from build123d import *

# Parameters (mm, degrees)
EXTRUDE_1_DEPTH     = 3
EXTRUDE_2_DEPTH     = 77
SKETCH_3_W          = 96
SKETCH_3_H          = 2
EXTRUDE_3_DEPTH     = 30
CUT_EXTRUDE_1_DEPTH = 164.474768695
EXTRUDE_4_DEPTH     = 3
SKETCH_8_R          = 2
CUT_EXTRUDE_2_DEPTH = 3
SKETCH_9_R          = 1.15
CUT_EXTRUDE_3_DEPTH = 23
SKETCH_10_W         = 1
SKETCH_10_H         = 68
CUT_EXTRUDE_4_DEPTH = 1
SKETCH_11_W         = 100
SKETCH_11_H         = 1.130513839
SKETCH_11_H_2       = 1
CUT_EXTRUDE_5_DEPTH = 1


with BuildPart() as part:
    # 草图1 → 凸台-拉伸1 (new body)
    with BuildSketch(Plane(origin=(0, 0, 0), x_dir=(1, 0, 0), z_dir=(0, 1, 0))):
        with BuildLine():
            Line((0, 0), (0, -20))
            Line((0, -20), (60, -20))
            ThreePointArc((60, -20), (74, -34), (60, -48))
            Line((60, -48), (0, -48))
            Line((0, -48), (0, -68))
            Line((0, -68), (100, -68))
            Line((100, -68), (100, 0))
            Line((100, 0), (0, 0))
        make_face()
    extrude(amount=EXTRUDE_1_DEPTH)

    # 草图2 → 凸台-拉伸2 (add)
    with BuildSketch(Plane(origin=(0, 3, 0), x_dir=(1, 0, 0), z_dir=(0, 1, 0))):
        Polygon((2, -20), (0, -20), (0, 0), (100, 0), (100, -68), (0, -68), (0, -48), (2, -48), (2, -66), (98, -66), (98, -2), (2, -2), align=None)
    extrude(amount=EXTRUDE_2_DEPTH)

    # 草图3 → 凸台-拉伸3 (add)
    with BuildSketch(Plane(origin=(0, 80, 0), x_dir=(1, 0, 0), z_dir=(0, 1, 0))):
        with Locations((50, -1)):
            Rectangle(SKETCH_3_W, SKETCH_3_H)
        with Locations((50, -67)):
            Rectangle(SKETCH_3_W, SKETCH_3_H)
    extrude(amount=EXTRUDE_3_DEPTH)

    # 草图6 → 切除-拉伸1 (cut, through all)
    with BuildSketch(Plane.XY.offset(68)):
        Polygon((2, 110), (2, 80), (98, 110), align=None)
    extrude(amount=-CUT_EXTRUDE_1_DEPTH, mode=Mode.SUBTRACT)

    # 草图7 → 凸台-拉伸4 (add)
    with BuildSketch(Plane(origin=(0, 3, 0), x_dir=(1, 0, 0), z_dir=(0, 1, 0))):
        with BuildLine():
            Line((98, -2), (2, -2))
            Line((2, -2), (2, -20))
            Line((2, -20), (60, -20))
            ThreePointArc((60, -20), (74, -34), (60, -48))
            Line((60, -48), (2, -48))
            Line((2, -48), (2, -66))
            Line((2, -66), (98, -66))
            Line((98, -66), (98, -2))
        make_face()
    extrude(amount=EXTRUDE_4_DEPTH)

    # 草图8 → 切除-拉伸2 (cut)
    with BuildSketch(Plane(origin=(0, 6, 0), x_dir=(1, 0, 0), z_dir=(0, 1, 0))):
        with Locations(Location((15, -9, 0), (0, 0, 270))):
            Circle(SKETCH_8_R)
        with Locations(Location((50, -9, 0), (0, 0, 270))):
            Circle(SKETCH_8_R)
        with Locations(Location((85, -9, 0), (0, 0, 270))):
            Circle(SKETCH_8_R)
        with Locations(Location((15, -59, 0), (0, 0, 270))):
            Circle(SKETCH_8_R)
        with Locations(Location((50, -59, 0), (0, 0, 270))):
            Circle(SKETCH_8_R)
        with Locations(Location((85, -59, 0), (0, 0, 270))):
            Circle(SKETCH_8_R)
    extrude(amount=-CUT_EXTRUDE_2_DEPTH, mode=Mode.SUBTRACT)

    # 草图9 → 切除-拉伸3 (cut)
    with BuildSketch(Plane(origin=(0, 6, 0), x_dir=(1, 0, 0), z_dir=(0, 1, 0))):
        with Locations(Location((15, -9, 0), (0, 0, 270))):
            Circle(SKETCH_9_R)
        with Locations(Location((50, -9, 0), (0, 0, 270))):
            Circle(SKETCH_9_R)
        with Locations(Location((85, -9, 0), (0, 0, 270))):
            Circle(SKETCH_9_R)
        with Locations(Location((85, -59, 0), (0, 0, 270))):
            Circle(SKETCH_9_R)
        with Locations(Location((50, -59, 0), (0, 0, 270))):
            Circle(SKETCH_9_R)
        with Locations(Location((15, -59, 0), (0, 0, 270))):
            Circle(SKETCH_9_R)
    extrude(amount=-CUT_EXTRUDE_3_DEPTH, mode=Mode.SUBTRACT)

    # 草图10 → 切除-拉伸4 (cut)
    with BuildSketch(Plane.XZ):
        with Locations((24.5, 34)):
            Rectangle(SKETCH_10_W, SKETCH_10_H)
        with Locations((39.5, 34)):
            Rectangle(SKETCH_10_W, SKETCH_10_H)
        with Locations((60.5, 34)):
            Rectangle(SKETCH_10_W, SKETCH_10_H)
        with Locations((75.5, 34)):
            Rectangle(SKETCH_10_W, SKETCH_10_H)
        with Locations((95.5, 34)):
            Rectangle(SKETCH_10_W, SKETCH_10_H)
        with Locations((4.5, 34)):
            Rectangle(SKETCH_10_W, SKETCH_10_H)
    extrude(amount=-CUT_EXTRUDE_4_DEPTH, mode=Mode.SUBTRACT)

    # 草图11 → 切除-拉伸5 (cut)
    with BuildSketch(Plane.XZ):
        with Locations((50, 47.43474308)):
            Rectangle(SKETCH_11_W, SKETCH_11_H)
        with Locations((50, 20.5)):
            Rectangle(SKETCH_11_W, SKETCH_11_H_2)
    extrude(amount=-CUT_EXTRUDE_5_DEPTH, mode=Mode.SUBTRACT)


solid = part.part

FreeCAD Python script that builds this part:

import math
import FreeCAD as App
import Part
import Sketcher

V = App.Vector
Q = App.Units.Quantity

doc = App.newDocument("Part")
body = doc.addObject("PartDesign::Body", "Body")

sketch1 = doc.addObject("Sketcher::SketchObject", "Sketch")
body.addObject(sketch1)
sketch1.AttachmentSupport = (doc.XZ_Plane, [""])
sketch1.MapMode = "FlatFace"
sketch1.addGeometry([
    Part.LineSegment(V(0, 0, 0), V(0, 20, 0)),
    Part.LineSegment(V(0, 20, 0), V(60, 20, 0)),
    Part.ArcOfCircle(Part.Circle(V(60, 34, 0), V(0, 0, 1), 14), math.radians(-90), math.radians(90)),
    Part.LineSegment(V(60, 48, 0), V(0, 48, 0)),
    Part.LineSegment(V(0, 48, 0), V(0, 68, 0)),
    Part.LineSegment(V(0, 68, 0), V(100, 68, 0)),
    Part.LineSegment(V(100, 68, 0), V(100, 0, 0)),
    Part.LineSegment(V(100, 0, 0), V(0, 0, 0)),
], False)
sketch1.addConstraint([
    Sketcher.Constraint("Coincident", 0, 2, 1, 1),
    Sketcher.Constraint("Tangent", 1, 2, 2, 1),
    Sketcher.Constraint("Tangent", 2, 2, 3, 1),
    Sketcher.Constraint("Coincident", 3, 2, 4, 1),
    Sketcher.Constraint("Coincident", 4, 2, 5, 1),
    Sketcher.Constraint("Coincident", 5, 2, 6, 1),
    Sketcher.Constraint("Coincident", 6, 2, 7, 1),
    Sketcher.Constraint("Coincident", 7, 2, 0, 1),
    Sketcher.Constraint("Vertical", 0),
    Sketcher.Constraint("Horizontal", 1),
    Sketcher.Constraint("Horizontal", 3),
    Sketcher.Constraint("Vertical", 4),
    Sketcher.Constraint("Horizontal", 5),
    Sketcher.Constraint("Vertical", 6),
    Sketcher.Constraint("Horizontal", 7),
    Sketcher.Constraint("Coincident", 7, 2, -1, 1),
    Sketcher.Constraint("PointOnObject", 3, 2, -2),
    Sketcher.Constraint("Equal", 0, 4),
    Sketcher.Constraint("Radius", 2, Q("14 mm")),
    Sketcher.Constraint("DistanceX", 1, 1, 1, 2, Q("60 mm")),
    Sketcher.Constraint("DistanceX", 5, 1, 5, 2, Q("100 mm")),
    Sketcher.Constraint("DistanceY", 0, 1, 0, 2, Q("20 mm")),
])
pad1 = doc.addObject("PartDesign::Pad", "Pad")
body.addObject(pad1)
pad1.Profile = sketch1
pad1.Length = 3
pad1.Reversed = True

sketch2 = doc.addObject("Sketcher::SketchObject", "Sketch001")
body.addObject(sketch2)
sketch2.AttachmentSupport = (doc.XZ_Plane, [""])
sketch2.MapMode = "FlatFace"
sketch2.AttachmentOffset = App.Placement(V(0, 0, -3), App.Rotation())
sketch2.addGeometry([
    Part.LineSegment(V(0, 20, 0), V(2, 20, 0)),
    Part.LineSegment(V(2, 20, 0), V(2, 2, 0)),
    Part.LineSegment(V(2, 2, 0), V(98, 2, 0)),
    Part.LineSegment(V(98, 2, 0), V(98, 66, 0)),
    Part.LineSegment(V(98, 66, 0), V(2, 66, 0)),
    Part.LineSegment(V(2, 66, 0), V(2, 48, 0)),
    Part.LineSegment(V(2, 48, 0), V(0, 48, 0)),
    Part.LineSegment(V(0, 48, 0), V(0, 68, 0)),
    Part.LineSegment(V(0, 68, 0), V(100, 68, 0)),
    Part.LineSegment(V(100, 68, 0), V(100, 0, 0)),
    Part.LineSegment(V(100, 0, 0), V(0, 0, 0)),
    Part.LineSegment(V(0, 0, 0), V(0, 20, 0)),
], False)
sketch2.addConstraint([
    Sketcher.Constraint("Coincident", 0, 2, 1, 1),
    Sketcher.Constraint("Coincident", 1, 2, 2, 1),
    Sketcher.Constraint("Coincident", 2, 2, 3, 1),
    Sketcher.Constraint("Coincident", 3, 2, 4, 1),
    Sketcher.Constraint("Coincident", 4, 2, 5, 1),
    Sketcher.Constraint("Coincident", 5, 2, 6, 1),
    Sketcher.Constraint("Coincident", 6, 2, 7, 1),
    Sketcher.Constraint("Coincident", 7, 2, 8, 1),
    Sketcher.Constraint("Coincident", 8, 2, 9, 1),
    Sketcher.Constraint("Coincident", 9, 2, 10, 1),
    Sketcher.Constraint("Coincident", 10, 2, 11, 1),
    Sketcher.Constraint("Coincident", 11, 2, 0, 1),
    Sketcher.Constraint("Horizontal", 0),
    Sketcher.Constraint("Vertical", 1),
    Sketcher.Constraint("Horizontal", 2),
    Sketcher.Constraint("Vertical", 3),
    Sketcher.Constraint("Horizontal", 4),
    Sketcher.Constraint("Vertical", 5),
    Sketcher.Constraint("Horizontal", 6),
    Sketcher.Constraint("Vertical", 7),
    Sketcher.Constraint("Horizontal", 8),
    Sketcher.Constraint("Vertical", 9),
    Sketcher.Constraint("Horizontal", 10),
    Sketcher.Constraint("Vertical", 11),
    Sketcher.Constraint("Coincident", 10, 2, -1, 1),
    Sketcher.Constraint("PointOnObject", 6, 2, -2),
    Sketcher.Constraint("Vertical", 1, 2, 4, 2),
    Sketcher.Constraint("Equal", 1, 5),
    Sketcher.Constraint("Equal", 7, 11),
    Sketcher.Constraint("DistanceX", 0, 1, 0, 2, Q("2 mm")),
    Sketcher.Constraint("DistanceX", 2, 1, 2, 2, Q("96 mm")),
    Sketcher.Constraint("DistanceX", 8, 1, 8, 2, Q("100 mm")),
    Sketcher.Constraint("DistanceY", 1, 2, 1, 1, Q("18 mm")),
    Sketcher.Constraint("DistanceY", 3, 1, 3, 2, Q("64 mm")),
    Sketcher.Constraint("DistanceY", 7, 1, 7, 2, Q("20 mm")),
])
pad2 = doc.addObject("PartDesign::Pad", "Pad001")
body.addObject(pad2)
pad2.Profile = sketch2
pad2.Length = 77
pad2.Reversed = True

sketch3 = doc.addObject("Sketcher::SketchObject", "Sketch002")
body.addObject(sketch3)
sketch3.AttachmentSupport = (doc.XZ_Plane, [""])
sketch3.MapMode = "FlatFace"
sketch3.AttachmentOffset = App.Placement(V(0, 0, -80), App.Rotation())
sketch3.addGeometry([
    Part.LineSegment(V(2, 0, 0), V(2, 2, 0)),
    Part.LineSegment(V(2, 2, 0), V(98, 2, 0)),
    Part.LineSegment(V(98, 2, 0), V(98, 0, 0)),
    Part.LineSegment(V(98, 0, 0), V(2, 0, 0)),
    Part.LineSegment(V(2, 66, 0), V(2, 68, 0)),
    Part.LineSegment(V(2, 68, 0), V(98, 68, 0)),
    Part.LineSegment(V(98, 68, 0), V(98, 66, 0)),
    Part.LineSegment(V(98, 66, 0), V(2, 66, 0)),
], False)
sketch3.addConstraint([
    Sketcher.Constraint("Coincident", 0, 2, 1, 1),
    Sketcher.Constraint("Coincident", 1, 2, 2, 1),
    Sketcher.Constraint("Coincident", 2, 2, 3, 1),
    Sketcher.Constraint("Coincident", 3, 2, 0, 1),
    Sketcher.Constraint("Coincident", 4, 2, 5, 1),
    Sketcher.Constraint("Coincident", 5, 2, 6, 1),
    Sketcher.Constraint("Coincident", 6, 2, 7, 1),
    Sketcher.Constraint("Coincident", 7, 2, 4, 1),
    Sketcher.Constraint("Vertical", 0),
    Sketcher.Constraint("Horizontal", 1),
    Sketcher.Constraint("Vertical", 2),
    Sketcher.Constraint("Horizontal", 3),
    Sketcher.Constraint("Vertical", 4),
    Sketcher.Constraint("Horizontal", 5),
    Sketcher.Constraint("Vertical", 6),
    Sketcher.Constraint("Horizontal", 7),
    Sketcher.Constraint("PointOnObject", 2, 2, -1),
    Sketcher.Constraint("Vertical", 3, 2, 4, 2),
    Sketcher.Constraint("Vertical", 2, 2, 5, 2),
    Sketcher.Constraint("Equal", 2, 4),
    Sketcher.Constraint("DistanceX", 1, 1, 1, 2, Q("96 mm")),
    Sketcher.Constraint("DistanceY", 0, 1, 0, 2, Q("2 mm")),
    Sketcher.Constraint("DistanceX", -1, 1, 0, 2, Q("2 mm")),
    Sketcher.Constraint("DistanceY", -1, 1, 4, 2, Q("68 mm")),
])
pad3 = doc.addObject("PartDesign::Pad", "Pad002")
body.addObject(pad3)
pad3.Profile = sketch3
pad3.Length = 30
pad3.Reversed = True

sketch4 = doc.addObject("Sketcher::SketchObject", "Sketch003")
body.addObject(sketch4)
sketch4.AttachmentSupport = (doc.XY_Plane, [""])
sketch4.MapMode = "FlatFace"
sketch4.AttachmentOffset = App.Placement(V(0, 0, 68), App.Rotation())
sketch4.addGeometry([
    Part.LineSegment(V(2, 110, 0), V(2, 80, 0)),
    Part.LineSegment(V(2, 80, 0), V(98, 110, 0)),
    Part.LineSegment(V(98, 110, 0), V(2, 110, 0)),
], False)
sketch4.addConstraint([
    Sketcher.Constraint("Coincident", 0, 2, 1, 1),
    Sketcher.Constraint("Coincident", 1, 2, 2, 1),
    Sketcher.Constraint("Coincident", 2, 2, 0, 1),
    Sketcher.Constraint("Vertical", 0),
    Sketcher.Constraint("Horizontal", 2),
    Sketcher.Constraint("DistanceX", 2, 2, 2, 1, Q("96 mm")),
    Sketcher.Constraint("DistanceY", 0, 2, 0, 1, Q("30 mm")),
    Sketcher.Constraint("DistanceX", -1, 1, 0, 2, Q("2 mm")),
    Sketcher.Constraint("DistanceY", -1, 1, 0, 2, Q("80 mm")),
])
pocket1 = doc.addObject("PartDesign::Pocket", "Pocket")
body.addObject(pocket1)
pocket1.Profile = sketch4
pocket1.Type = "ThroughAll"

sketch5 = doc.addObject("Sketcher::SketchObject", "Sketch004")
body.addObject(sketch5)
sketch5.AttachmentSupport = (doc.XZ_Plane, [""])
sketch5.MapMode = "FlatFace"
sketch5.AttachmentOffset = App.Placement(V(0, 0, -3), App.Rotation())
sketch5.addGeometry([
    Part.LineSegment(V(98, 2, 0), V(2, 2, 0)),
    Part.LineSegment(V(2, 2, 0), V(2, 20, 0)),
    Part.LineSegment(V(2, 20, 0), V(60, 20, 0)),
    Part.ArcOfCircle(Part.Circle(V(60, 34, 0), V(0, 0, 1), 14), math.radians(-90), math.radians(90)),
    Part.LineSegment(V(60, 48, 0), V(2, 48, 0)),
    Part.LineSegment(V(2, 48, 0), V(2, 66, 0)),
    Part.LineSegment(V(2, 66, 0), V(98, 66, 0)),
    Part.LineSegment(V(98, 66, 0), V(98, 2, 0)),
], False)
sketch5.addConstraint([
    Sketcher.Constraint("Coincident", 0, 2, 1, 1),
    Sketcher.Constraint("Coincident", 1, 2, 2, 1),
    Sketcher.Constraint("Tangent", 2, 2, 3, 1),
    Sketcher.Constraint("Tangent", 3, 2, 4, 1),
    Sketcher.Constraint("Coincident", 4, 2, 5, 1),
    Sketcher.Constraint("Coincident", 5, 2, 6, 1),
    Sketcher.Constraint("Coincident", 6, 2, 7, 1),
    Sketcher.Constraint("Coincident", 7, 2, 0, 1),
    Sketcher.Constraint("Horizontal", 0),
    Sketcher.Constraint("Vertical", 1),
    Sketcher.Constraint("Horizontal", 2),
    Sketcher.Constraint("Horizontal", 4),
    Sketcher.Constraint("Vertical", 5),
    Sketcher.Constraint("Horizontal", 6),
    Sketcher.Constraint("Vertical", 7),
    Sketcher.Constraint("Vertical", 1, 2, 4, 2),
    Sketcher.Constraint("Equal", 1, 5),
    Sketcher.Constraint("Radius", 3, Q("14 mm")),
    Sketcher.Constraint("DistanceX", 0, 2, 0, 1, Q("96 mm")),
    Sketcher.Constraint("DistanceX", 2, 1, 2, 2, Q("58 mm")),
    Sketcher.Constraint("DistanceY", 1, 1, 1, 2, Q("18 mm")),
    Sketcher.Constraint("DistanceX", -1, 1, 3, 3, Q("60 mm")),
    Sketcher.Constraint("DistanceY", -1, 1, 3, 3, Q("34 mm")),
])
pad4 = doc.addObject("PartDesign::Pad", "Pad003")
body.addObject(pad4)
pad4.Profile = sketch5
pad4.Length = 3
pad4.Reversed = True

sketch6 = doc.addObject("Sketcher::SketchObject", "Sketch005")
body.addObject(sketch6)
sketch6.AttachmentSupport = (doc.XZ_Plane, [""])
sketch6.MapMode = "FlatFace"
sketch6.AttachmentOffset = App.Placement(V(0, 0, -6), App.Rotation())
sketch6.addGeometry([
    Part.Circle(V(15, 9, 0), V(0, 0, 1), 2),
    Part.Circle(V(50, 9, 0), V(0, 0, 1), 2),
    Part.Circle(V(85, 9, 0), V(0, 0, 1), 2),
    Part.Circle(V(15, 59, 0), V(0, 0, 1), 2),
    Part.Circle(V(50, 59, 0), V(0, 0, 1), 2),
    Part.Circle(V(85, 59, 0), V(0, 0, 1), 2),
], False)
sketch6.addConstraint([
    Sketcher.Constraint("Equal", 0, 1),
    Sketcher.Constraint("Equal", 1, 2),
    Sketcher.Constraint("Equal", 2, 3),
    Sketcher.Constraint("Equal", 3, 4),
    Sketcher.Constraint("Equal", 4, 5),
    Sketcher.Constraint("Horizontal", 0, 3, 1, 3),
    Sketcher.Constraint("Horizontal", 1, 3, 2, 3),
    Sketcher.Constraint("Horizontal", 3, 3, 4, 3),
    Sketcher.Constraint("Horizontal", 4, 3, 5, 3),
    Sketcher.Constraint("Vertical", 0, 3, 3, 3),
    Sketcher.Constraint("Vertical", 1, 3, 4, 3),
    Sketcher.Constraint("Vertical", 2, 3, 5, 3),
    Sketcher.Constraint("Diameter", 0, Q("4 mm")),
    Sketcher.Constraint("DistanceX", -1, 1, 0, 3, Q("15 mm")),
    Sketcher.Constraint("DistanceY", -1, 1, 0, 3, Q("9 mm")),
    Sketcher.Constraint("DistanceX", -1, 1, 1, 3, Q("50 mm")),
    Sketcher.Constraint("DistanceX", -1, 1, 2, 3, Q("85 mm")),
    Sketcher.Constraint("DistanceY", -1, 1, 3, 3, Q("59 mm")),
])
pocket2 = doc.addObject("PartDesign::Pocket", "Pocket001")
body.addObject(pocket2)
pocket2.Profile = sketch6
pocket2.Length = 3
pocket2.Reversed = True

sketch7 = doc.addObject("Sketcher::SketchObject", "Sketch006")
body.addObject(sketch7)
sketch7.AttachmentSupport = (doc.XZ_Plane, [""])
sketch7.MapMode = "FlatFace"
sketch7.AttachmentOffset = App.Placement(V(0, 0, -6), App.Rotation())
sketch7.addGeometry([
    Part.Circle(V(15, 9, 0), V(0, 0, 1), 1.1),
    Part.Circle(V(50, 9, 0), V(0, 0, 1), 1.1),
    Part.Circle(V(85, 9, 0), V(0, 0, 1), 1.1),
    Part.Circle(V(85, 59, 0), V(0, 0, 1), 1.1),
    Part.Circle(V(50, 59, 0), V(0, 0, 1), 1.1),
    Part.Circle(V(15, 59, 0), V(0, 0, 1), 1.1),
], False)
sketch7.addConstraint([
    Sketcher.Constraint("Equal", 0, 1),
    Sketcher.Constraint("Equal", 1, 2),
    Sketcher.Constraint("Equal", 2, 3),
    Sketcher.Constraint("Equal", 3, 4),
    Sketcher.Constraint("Equal", 4, 5),
    Sketcher.Constraint("Horizontal", 0, 3, 1, 3),
    Sketcher.Constraint("Horizontal", 1, 3, 2, 3),
    Sketcher.Constraint("Horizontal", 3, 3, 4, 3),
    Sketcher.Constraint("Horizontal", 4, 3, 5, 3),
    Sketcher.Constraint("Vertical", 2, 3, 3, 3),
    Sketcher.Constraint("Vertical", 1, 3, 4, 3),
    Sketcher.Constraint("Vertical", 0, 3, 5, 3),
    Sketcher.Constraint("Diameter", 0, Q("2.3 mm")),
    Sketcher.Constraint("DistanceX", -1, 1, 0, 3, Q("15 mm")),
    Sketcher.Constraint("DistanceY", -1, 1, 0, 3, Q("9 mm")),
    Sketcher.Constraint("DistanceX", -1, 1, 1, 3, Q("50 mm")),
    Sketcher.Constraint("DistanceX", -1, 1, 2, 3, Q("85 mm")),
    Sketcher.Constraint("DistanceY", -1, 1, 3, 3, Q("59 mm")),
])
pocket3 = doc.addObject("PartDesign::Pocket", "Pocket002")
body.addObject(pocket3)
pocket3.Profile = sketch7
pocket3.Length = 23
pocket3.Reversed = True

sketch8 = doc.addObject("Sketcher::SketchObject", "Sketch007")
body.addObject(sketch8)
sketch8.AttachmentSupport = (doc.XZ_Plane, [""])
sketch8.MapMode = "FlatFace"
sketch8.addGeometry([
    Part.LineSegment(V(24, 68, 0), V(24, 0, 0)),
    Part.LineSegment(V(24, 0, 0), V(25, 0, 0)),
    Part.LineSegment(V(25, 0, 0), V(25, 68, 0)),
    Part.LineSegment(V(25, 68, 0), V(24, 68, 0)),
    Part.LineSegment(V(39, 68, 0), V(39, 0, 0)),
    Part.LineSegment(V(39, 0, 0), V(40, 0, 0)),
    Part.LineSegment(V(40, 0, 0), V(40, 68, 0)),
    Part.LineSegment(V(40, 68, 0), V(39, 68, 0)),
    Part.LineSegment(V(60, 68, 0), V(60, 0, 0)),
    Part.LineSegment(V(60, 0, 0), V(61, 0, 0)),
    Part.LineSegment(V(61, 0, 0), V(61, 68, 0)),
    Part.LineSegment(V(61, 68, 0), V(60, 68, 0)),
    Part.LineSegment(V(75, 68, 0), V(75, 0, 0)),
    Part.LineSegment(V(75, 0, 0), V(76, 0, 0)),
    Part.LineSegment(V(76, 0, 0), V(76, 68, 0)),
    Part.LineSegment(V(76, 68, 0), V(75, 68, 0)),
    Part.LineSegment(V(95, 68, 0), V(95, 0, 0)),
    Part.LineSegment(V(95, 0, 0), V(96, 0, 0)),
    Part.LineSegment(V(96, 0, 0), V(96, 68, 0)),
    Part.LineSegment(V(96, 68, 0), V(95, 68, 0)),
    Part.LineSegment(V(4, 68, 0), V(4, 0, 0)),
    Part.LineSegment(V(4, 0, 0), V(5, 0, 0)),
    Part.LineSegment(V(5, 0, 0), V(5, 68, 0)),
    Part.LineSegment(V(5, 68, 0), V(4, 68, 0)),
], False)
sketch8.addConstraint([
    Sketcher.Constraint("Coincident", 0, 2, 1, 1),
    Sketcher.Constraint("Coincident", 1, 2, 2, 1),
    Sketcher.Constraint("Coincident", 2, 2, 3, 1),
    Sketcher.Constraint("Coincident", 3, 2, 0, 1),
    Sketcher.Constraint("Coincident", 4, 2, 5, 1),
    Sketcher.Constraint("Coincident", 5, 2, 6, 1),
    Sketcher.Constraint("Coincident", 6, 2, 7, 1),
    Sketcher.Constraint("Coincident", 7, 2, 4, 1),
    Sketcher.Constraint("Coincident", 8, 2, 9, 1),
    Sketcher.Constraint("Coincident", 9, 2, 10, 1),
    Sketcher.Constraint("Coincident", 10, 2, 11, 1),
    Sketcher.Constraint("Coincident", 11, 2, 8, 1),
    Sketcher.Constraint("Coincident", 12, 2, 13, 1),
    Sketcher.Constraint("Coincident", 13, 2, 14, 1),
    Sketcher.Constraint("Coincident", 14, 2, 15, 1),
    Sketcher.Constraint("Coincident", 15, 2, 12, 1),
    Sketcher.Constraint("Coincident", 16, 2, 17, 1),
    Sketcher.Constraint("Coincident", 17, 2, 18, 1),
    Sketcher.Constraint("Coincident", 18, 2, 19, 1),
    Sketcher.Constraint("Coincident", 19, 2, 16, 1),
    Sketcher.Constraint("Coincident", 20, 2, 21, 1),
    Sketcher.Constraint("Coincident", 21, 2, 22, 1),
    Sketcher.Constraint("Coincident", 22, 2, 23, 1),
    Sketcher.Constraint("Coincident", 23, 2, 20, 1),
    Sketcher.Constraint("Vertical", 0),
    Sketcher.Constraint("Horizontal", 1),
    Sketcher.Constraint("Vertical", 2),
    Sketcher.Constraint("Horizontal", 3),
    Sketcher.Constraint("Vertical", 4),
    Sketcher.Constraint("Horizontal", 5),
    Sketcher.Constraint("Vertical", 6),
    Sketcher.Constraint("Horizontal", 7),
    Sketcher.Constraint("Vertical", 8),
    Sketcher.Constraint("Horizontal", 9),
    Sketcher.Constraint("Vertical", 10),
    Sketcher.Constraint("Horizontal", 11),
    Sketcher.Constraint("Vertical", 12),
    Sketcher.Constraint("Horizontal", 13),
    Sketcher.Constraint("Vertical", 14),
    Sketcher.Constraint("Horizontal", 15),
    Sketcher.Constraint("Vertical", 16),
    Sketcher.Constraint("Horizontal", 17),
    Sketcher.Constraint("Vertical", 18),
    Sketcher.Constraint("Horizontal", 19),
    Sketcher.Constraint("Vertical", 20),
    Sketcher.Constraint("Horizontal", 21),
    Sketcher.Constraint("Vertical", 22),
    Sketcher.Constraint("Horizontal", 23),
    Sketcher.Constraint("PointOnObject", 0, 2, -1),
    Sketcher.Constraint("PointOnObject", 4, 2, -1),
    Sketcher.Constraint("PointOnObject", 8, 2, -1),
    Sketcher.Constraint("PointOnObject", 12, 2, -1),
    Sketcher.Constraint("PointOnObject", 16, 2, -1),
    Sketcher.Constraint("PointOnObject", 20, 2, -1),
    Sketcher.Constraint("Horizontal", 3, 2, 6, 2),
    Sketcher.Constraint("Horizontal", 7, 2, 10, 2),
    Sketcher.Constraint("Horizontal", 11, 2, 14, 2),
    Sketcher.Constraint("Horizontal", 15, 2, 18, 2),
    Sketcher.Constraint("Horizontal", 19, 2, 22, 2),
    Sketcher.Constraint("Equal", 3, 5),
    Sketcher.Constraint("Equal", 7, 9),
    Sketcher.Constraint("Equal", 11, 13),
    Sketcher.Constraint("Equal", 15, 17),
    Sketcher.Constraint("Equal", 19, 21),
    Sketcher.Constraint("DistanceX", 1, 1, 1, 2, Q("1 mm")),
    Sketcher.Constraint("DistanceY", 0, 2, 0, 1, Q("68 mm")),
    Sketcher.Constraint("DistanceX", -1, 1, 0, 2, Q("24 mm")),
    Sketcher.Constraint("DistanceX", -1, 1, 4, 2, Q("39 mm")),
    Sketcher.Constraint("DistanceX", -1, 1, 8, 2, Q("60 mm")),
    Sketcher.Constraint("DistanceX", -1, 1, 12, 2, Q("75 mm")),
    Sketcher.Constraint("DistanceX", -1, 1, 16, 2, Q("95 mm")),
    Sketcher.Constraint("DistanceX", -1, 1, 20, 2, Q("4 mm")),
])
pocket4 = doc.addObject("PartDesign::Pocket", "Pocket003")
body.addObject(pocket4)
pocket4.Profile = sketch8
pocket4.Length = 1

sketch9 = doc.addObject("Sketcher::SketchObject", "Sketch008")
body.addObject(sketch9)
sketch9.AttachmentSupport = (doc.XZ_Plane, [""])
sketch9.MapMode = "FlatFace"
sketch9.addGeometry([
    Part.LineSegment(V(0, 48, 0), V(0, 46.9, 0)),
    Part.LineSegment(V(0, 46.9, 0), V(100, 46.9, 0)),
    Part.LineSegment(V(100, 46.9, 0), V(100, 48, 0)),
    Part.LineSegment(V(100, 48, 0), V(0, 48, 0)),
    Part.LineSegment(V(0, 21, 0), V(0, 20, 0)),
    Part.LineSegment(V(0, 20, 0), V(100, 20, 0)),
    Part.LineSegment(V(100, 20, 0), V(100, 21, 0)),
    Part.LineSegment(V(100, 21, 0), V(0, 21, 0)),
], False)
sketch9.addConstraint([
    Sketcher.Constraint("Coincident", 0, 2, 1, 1),
    Sketcher.Constraint("Coincident", 1, 2, 2, 1),
    Sketcher.Constraint("Coincident", 2, 2, 3, 1),
    Sketcher.Constraint("Coincident", 3, 2, 0, 1),
    Sketcher.Constraint("Coincident", 4, 2, 5, 1),
    Sketcher.Constraint("Coincident", 5, 2, 6, 1),
    Sketcher.Constraint("Coincident", 6, 2, 7, 1),
    Sketcher.Constraint("Coincident", 7, 2, 4, 1),
    Sketcher.Constraint("Vertical", 0),
    Sketcher.Constraint("Horizontal", 1),
    Sketcher.Constraint("Vertical", 2),
    Sketcher.Constraint("Horizontal", 3),
    Sketcher.Constraint("Vertical", 4),
    Sketcher.Constraint("Horizontal", 5),
    Sketcher.Constraint("Vertical", 6),
    Sketcher.Constraint("Horizontal", 7),
    Sketcher.Constraint("PointOnObject", 0, 2, -2),
    Sketcher.Constraint("PointOnObject", 4, 2, -2),
    Sketcher.Constraint("Vertical", 2, 2, 5, 2),
    Sketcher.Constraint("DistanceX", 1, 1, 1, 2, Q("100 mm")),
    Sketcher.Constraint("DistanceY", 4, 2, 4, 1, Q("1 mm")),
    Sketcher.Constraint("DistanceY", -1, 1, 2, 2, Q("48 mm")),
    Sketcher.Constraint("DistanceY", -1, 1, 4, 2, Q("20 mm")),
    Sketcher.Constraint("DistanceY", 0, 2, 0, 1, Q("1.130514 mm")),
])
pocket5 = doc.addObject("PartDesign::Pocket", "Pocket004")
body.addObject(pocket5)
pocket5.Profile = sketch9
pocket5.Length = 1

doc.recompute()
